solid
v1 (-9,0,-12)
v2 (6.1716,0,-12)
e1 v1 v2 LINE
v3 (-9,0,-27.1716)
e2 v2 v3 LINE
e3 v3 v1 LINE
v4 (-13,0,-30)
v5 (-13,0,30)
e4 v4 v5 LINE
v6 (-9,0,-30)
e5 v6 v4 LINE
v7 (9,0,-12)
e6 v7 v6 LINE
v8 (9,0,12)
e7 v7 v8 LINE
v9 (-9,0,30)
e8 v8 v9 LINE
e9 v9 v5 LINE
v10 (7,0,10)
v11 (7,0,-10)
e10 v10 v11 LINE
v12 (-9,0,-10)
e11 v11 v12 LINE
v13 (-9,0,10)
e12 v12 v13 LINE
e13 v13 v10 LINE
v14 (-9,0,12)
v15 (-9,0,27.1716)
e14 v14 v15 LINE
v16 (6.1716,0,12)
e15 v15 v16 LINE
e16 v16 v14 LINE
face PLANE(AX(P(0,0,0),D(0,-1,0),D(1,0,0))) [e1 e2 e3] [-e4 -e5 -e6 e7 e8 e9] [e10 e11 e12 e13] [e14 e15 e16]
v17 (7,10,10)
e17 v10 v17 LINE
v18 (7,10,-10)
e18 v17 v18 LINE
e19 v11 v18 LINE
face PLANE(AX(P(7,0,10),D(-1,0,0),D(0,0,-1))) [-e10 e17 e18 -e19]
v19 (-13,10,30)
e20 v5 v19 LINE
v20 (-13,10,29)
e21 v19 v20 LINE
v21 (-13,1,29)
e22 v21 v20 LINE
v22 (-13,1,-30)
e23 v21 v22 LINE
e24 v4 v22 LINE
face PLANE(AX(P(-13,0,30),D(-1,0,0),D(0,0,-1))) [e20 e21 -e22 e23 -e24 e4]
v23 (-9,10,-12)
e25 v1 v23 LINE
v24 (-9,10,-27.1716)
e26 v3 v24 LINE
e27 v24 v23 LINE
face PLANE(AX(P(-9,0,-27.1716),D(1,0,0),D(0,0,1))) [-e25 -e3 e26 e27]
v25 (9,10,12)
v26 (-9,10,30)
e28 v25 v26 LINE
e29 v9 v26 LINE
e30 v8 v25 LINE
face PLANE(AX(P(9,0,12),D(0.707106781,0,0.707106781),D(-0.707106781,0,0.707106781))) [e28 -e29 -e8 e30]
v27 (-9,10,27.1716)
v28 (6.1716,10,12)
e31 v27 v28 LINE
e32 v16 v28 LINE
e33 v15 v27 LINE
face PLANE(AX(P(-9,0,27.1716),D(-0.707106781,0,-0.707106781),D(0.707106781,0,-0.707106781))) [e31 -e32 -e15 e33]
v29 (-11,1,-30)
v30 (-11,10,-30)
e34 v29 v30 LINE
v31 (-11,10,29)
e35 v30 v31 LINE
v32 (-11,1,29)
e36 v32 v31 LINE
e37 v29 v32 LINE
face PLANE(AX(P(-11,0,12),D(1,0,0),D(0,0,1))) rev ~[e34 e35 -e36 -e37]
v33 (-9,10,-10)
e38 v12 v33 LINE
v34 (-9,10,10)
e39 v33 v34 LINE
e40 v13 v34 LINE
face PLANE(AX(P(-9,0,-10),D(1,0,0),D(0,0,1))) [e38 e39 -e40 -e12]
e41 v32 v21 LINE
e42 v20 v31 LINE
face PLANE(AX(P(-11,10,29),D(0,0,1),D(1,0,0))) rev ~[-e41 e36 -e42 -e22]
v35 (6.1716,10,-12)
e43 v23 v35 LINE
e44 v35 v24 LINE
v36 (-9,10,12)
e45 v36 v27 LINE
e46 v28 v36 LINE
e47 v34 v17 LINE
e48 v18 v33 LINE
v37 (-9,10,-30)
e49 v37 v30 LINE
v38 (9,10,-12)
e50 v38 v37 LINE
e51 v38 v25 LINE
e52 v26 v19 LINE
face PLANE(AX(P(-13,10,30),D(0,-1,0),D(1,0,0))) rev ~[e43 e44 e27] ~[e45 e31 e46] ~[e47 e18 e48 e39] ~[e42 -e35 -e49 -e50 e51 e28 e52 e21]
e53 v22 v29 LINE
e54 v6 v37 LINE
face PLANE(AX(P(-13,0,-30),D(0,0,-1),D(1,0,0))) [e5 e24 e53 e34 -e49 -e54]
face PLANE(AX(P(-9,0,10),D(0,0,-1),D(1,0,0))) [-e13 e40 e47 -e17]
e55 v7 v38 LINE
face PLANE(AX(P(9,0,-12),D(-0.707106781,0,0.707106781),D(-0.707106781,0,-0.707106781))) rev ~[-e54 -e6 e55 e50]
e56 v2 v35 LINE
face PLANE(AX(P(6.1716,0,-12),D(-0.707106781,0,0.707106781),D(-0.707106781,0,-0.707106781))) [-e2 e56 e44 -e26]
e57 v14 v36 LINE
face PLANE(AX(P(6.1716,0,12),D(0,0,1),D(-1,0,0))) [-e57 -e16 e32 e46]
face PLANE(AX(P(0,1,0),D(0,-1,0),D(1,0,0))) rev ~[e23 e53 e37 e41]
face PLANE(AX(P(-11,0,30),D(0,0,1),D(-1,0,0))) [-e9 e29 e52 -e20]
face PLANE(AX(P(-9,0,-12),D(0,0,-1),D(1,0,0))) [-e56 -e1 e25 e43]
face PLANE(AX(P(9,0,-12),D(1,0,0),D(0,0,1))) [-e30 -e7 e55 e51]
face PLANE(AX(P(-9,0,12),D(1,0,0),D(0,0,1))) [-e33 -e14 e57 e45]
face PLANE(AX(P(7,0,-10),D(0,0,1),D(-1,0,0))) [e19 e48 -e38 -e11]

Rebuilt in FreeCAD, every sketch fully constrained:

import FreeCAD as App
import Part
import Sketcher

V = App.Vector
Q = App.Units.Quantity

doc = App.newDocument("Part")
body = doc.addObject("PartDesign::Body", "Body")

sketch1 = body.newObject("Sketcher::SketchObject", "Sketch")
sketch1.AttachmentSupport = (doc.getObject("XZ_Plane"), [""])
sketch1.MapMode = "FlatFace"
sketch1.addGeometry([
    Part.LineSegment(V(-9, 30, 0), V(9, 12, 0)),
    Part.LineSegment(V(9, 12, 0), V(9, -12, 0)),
    Part.LineSegment(V(9, -12, 0), V(-9, -30, 0)),
    Part.LineSegment(V(-9, -30, 0), V(-11, -30, 0)),
    Part.LineSegment(V(-11, -30, 0), V(-11, 30, 0)),
    Part.LineSegment(V(-11, 30, 0), V(-9, 30, 0)),
    Part.LineSegment(V(6.1716, 12, 0), V(-9, 27.1716, 0)),
    Part.LineSegment(V(-9, 27.1716, 0), V(-9, 12, 0)),
    Part.LineSegment(V(-9, 12, 0), V(6.1716, 12, 0)),
    Part.LineSegment(V(-9, -10, 0), V(7, -10, 0)),
    Part.LineSegment(V(7, -10, 0), V(7, 10, 0)),
    Part.LineSegment(V(7, 10, 0), V(-9, 10, 0)),
    Part.LineSegment(V(-9, 10, 0), V(-9, -10, 0)),
    Part.LineSegment(V(6.1716, -12, 0), V(-9, -12, 0)),
    Part.LineSegment(V(-9, -12, 0), V(-9, -27.1716, 0)),
    Part.LineSegment(V(-9, -27.1716, 0), V(6.1716, -12, 0)),
], False)
sketch1.addConstraint([
    Sketcher.Constraint("Coincident", 0, 2, 1, 1),
    Sketcher.Constraint("Coincident", 1, 2, 2, 1),
    Sketcher.Constraint("Coincident", 2, 2, 3, 1),
    Sketcher.Constraint("Coincident", 3, 2, 4, 1),
    Sketcher.Constraint("Coincident", 4, 2, 5, 1),
    Sketcher.Constraint("Coincident", 5, 2, 0, 1),
    Sketcher.Constraint("Coincident", 6, 2, 7, 1),
    Sketcher.Constraint("Coincident", 7, 2, 8, 1),
    Sketcher.Constraint("Coincident", 8, 2, 6, 1),
    Sketcher.Constraint("Coincident", 9, 2, 10, 1),
    Sketcher.Constraint("Coincident", 10, 2, 11, 1),
    Sketcher.Constraint("Coincident", 11, 2, 12, 1),
    Sketcher.Constraint("Coincident", 12, 2, 9, 1),
    Sketcher.Constraint("Coincident", 13, 2, 14, 1),
    Sketcher.Constraint("Coincident", 14, 2, 15, 1),
    Sketcher.Constraint("Coincident", 15, 2, 13, 1),
    Sketcher.Constraint("Vertical", 1),
    Sketcher.Constraint("Horizontal", 3),
    Sketcher.Constraint("Vertical", 4),
    Sketcher.Constraint("Horizontal", 5),
    Sketcher.Constraint("Vertical", 7),
    Sketcher.Constraint("Horizontal", 8),
    Sketcher.Constraint("Horizontal", 9),
    Sketcher.Constraint("Vertical", 10),
    Sketcher.Constraint("Horizontal", 11),
    Sketcher.Constraint("Vertical", 12),
    Sketcher.Constraint("Horizontal", 13),
    Sketcher.Constraint("Vertical", 14),
    Sketcher.Constraint("Symmetric", 1, 2, 7, 2, -1, 1),
    Sketcher.Constraint("Symmetric", 0, 2, 13, 2, -1, 1),
    Sketcher.Constraint("Symmetric", 2, 2, 5, 2, -1),
    Sketcher.Constraint("Symmetric", 8, 2, 15, 2, -1),
    Sketcher.Constraint("Perpendicular", 0, 2),
    Sketcher.Constraint("Perpendicular", 2, 6),
    Sketcher.Constraint("Perpendicular", 6, 15),
    Sketcher.Constraint("Vertical", 5, 2, 6, 2),
    Sketcher.Constraint("Vertical", 7, 2, 11, 2),
    Sketcher.Constraint("DistanceX", 3, 2, 3, 1, Q("2 mm")),
    Sketcher.Constraint("DistanceX", 9, 1, 9, 2, Q("16 mm")),
    Sketcher.Constraint("DistanceY", 4, 1, 4, 2, Q("60 mm")),
    Sketcher.Constraint("DistanceY", 10, 1, 10, 2, Q("20 mm")),
    Sketcher.Constraint("DistanceX", 3, 2, 1, 2, Q("20 mm")),
    Sketcher.Constraint("DistanceY", 1, 2, 9, 2, Q("2 mm")),
    Sketcher.Constraint("Distance", 6, Q("21.456 mm")),
])
pad1 = body.newObject("PartDesign::Pad", "Pad")
pad1.Profile = sketch1
pad1.Length = 10
pad1.Reversed = True

sketch2 = body.newObject("Sketcher::SketchObject", "Sketch001")
sketch2.AttachmentSupport = (doc.getObject("XZ_Plane"), [""])
sketch2.MapMode = "FlatFace"
sketch2.addGeometry([
    Part.LineSegment(V(-11, -30, 0), V(-11, 30, 0)),
    Part.LineSegment(V(-11, 30, 0), V(-13, 30, 0)),
    Part.LineSegment(V(-13, 30, 0), V(-13, -30, 0)),
    Part.LineSegment(V(-13, -30, 0), V(-11, -30, 0)),
], False)
sketch2.addConstraint([
    Sketcher.Constraint("Coincident", 0, 2, 1, 1),
    Sketcher.Constraint("Coincident", 1, 2, 2, 1),
    Sketcher.Constraint("Coincident", 2, 2, 3, 1),
    Sketcher.Constraint("Coincident", 3, 2, 0, 1),
    Sketcher.Constraint("Vertical", 0),
    Sketcher.Constraint("Horizontal", 1),
    Sketcher.Constraint("Vertical", 2),
    Sketcher.Constraint("Horizontal", 3),
    Sketcher.Constraint("DistanceX", 1, 2, 1, 1, Q("2 mm")),
    Sketcher.Constraint("DistanceY", 0, 1, 0, 2, Q("60 mm")),
    Sketcher.Constraint("DistanceX", 0, 2, -1, 1, Q("11 mm")),
    Sketcher.Constraint("DistanceY", -1, 1, 0, 2, Q("30 mm")),
])
pad2 = body.newObject("PartDesign::Pad", "Pad001")
pad2.Profile = sketch2
pad2.Length = 1
pad2.Reversed = True

sketch3 = body.newObject("Sketcher::SketchObject", "Sketch002")
sketch3.AttachmentSupport = (doc.getObject("XY_Plane"), [""])
sketch3.MapMode = "FlatFace"
sketch3.AttachmentOffset = App.Placement(V(0, 0, 30), App.Rotation())
sketch3.addGeometry([
    Part.LineSegment(V(-11, 0, 0), V(-11, 10, 0)),
    Part.LineSegment(V(-11, 10, 0), V(-13, 10, 0)),
    Part.LineSegment(V(-13, 10, 0), V(-13, 0, 0)),
    Part.LineSegment(V(-13, 0, 0), V(-11, 0, 0)),
], False)
sketch3.addConstraint([
    Sketcher.Constraint("Coincident", 0, 2, 1, 1),
    Sketcher.Constraint("Coincident", 1, 2, 2, 1),
    Sketcher.Constraint("Coincident", 2, 2, 3, 1),
    Sketcher.Constraint("Coincident", 3, 2, 0, 1),
    Sketcher.Constraint("Vertical", 0),
    Sketcher.Constraint("Horizontal", 1),
    Sketcher.Constraint("Vertical", 2),
    Sketcher.Constraint("Horizontal", 3),
    Sketcher.Constraint("PointOnObject", 2, 2, -1),
    Sketcher.Constraint("DistanceX", 1, 2, 1, 1, Q("2 mm")),
    Sketcher.Constraint("DistanceY", 0, 1, 0, 2, Q("10 mm")),
    Sketcher.Constraint("DistanceX", 0, 2, -1, 1, Q("11 mm")),
])
pad3 = body.newObject("PartDesign::Pad", "Pad002")
pad3.Profile = sketch3
pad3.Length = 1
pad3.Reversed = True

doc.recompute()
